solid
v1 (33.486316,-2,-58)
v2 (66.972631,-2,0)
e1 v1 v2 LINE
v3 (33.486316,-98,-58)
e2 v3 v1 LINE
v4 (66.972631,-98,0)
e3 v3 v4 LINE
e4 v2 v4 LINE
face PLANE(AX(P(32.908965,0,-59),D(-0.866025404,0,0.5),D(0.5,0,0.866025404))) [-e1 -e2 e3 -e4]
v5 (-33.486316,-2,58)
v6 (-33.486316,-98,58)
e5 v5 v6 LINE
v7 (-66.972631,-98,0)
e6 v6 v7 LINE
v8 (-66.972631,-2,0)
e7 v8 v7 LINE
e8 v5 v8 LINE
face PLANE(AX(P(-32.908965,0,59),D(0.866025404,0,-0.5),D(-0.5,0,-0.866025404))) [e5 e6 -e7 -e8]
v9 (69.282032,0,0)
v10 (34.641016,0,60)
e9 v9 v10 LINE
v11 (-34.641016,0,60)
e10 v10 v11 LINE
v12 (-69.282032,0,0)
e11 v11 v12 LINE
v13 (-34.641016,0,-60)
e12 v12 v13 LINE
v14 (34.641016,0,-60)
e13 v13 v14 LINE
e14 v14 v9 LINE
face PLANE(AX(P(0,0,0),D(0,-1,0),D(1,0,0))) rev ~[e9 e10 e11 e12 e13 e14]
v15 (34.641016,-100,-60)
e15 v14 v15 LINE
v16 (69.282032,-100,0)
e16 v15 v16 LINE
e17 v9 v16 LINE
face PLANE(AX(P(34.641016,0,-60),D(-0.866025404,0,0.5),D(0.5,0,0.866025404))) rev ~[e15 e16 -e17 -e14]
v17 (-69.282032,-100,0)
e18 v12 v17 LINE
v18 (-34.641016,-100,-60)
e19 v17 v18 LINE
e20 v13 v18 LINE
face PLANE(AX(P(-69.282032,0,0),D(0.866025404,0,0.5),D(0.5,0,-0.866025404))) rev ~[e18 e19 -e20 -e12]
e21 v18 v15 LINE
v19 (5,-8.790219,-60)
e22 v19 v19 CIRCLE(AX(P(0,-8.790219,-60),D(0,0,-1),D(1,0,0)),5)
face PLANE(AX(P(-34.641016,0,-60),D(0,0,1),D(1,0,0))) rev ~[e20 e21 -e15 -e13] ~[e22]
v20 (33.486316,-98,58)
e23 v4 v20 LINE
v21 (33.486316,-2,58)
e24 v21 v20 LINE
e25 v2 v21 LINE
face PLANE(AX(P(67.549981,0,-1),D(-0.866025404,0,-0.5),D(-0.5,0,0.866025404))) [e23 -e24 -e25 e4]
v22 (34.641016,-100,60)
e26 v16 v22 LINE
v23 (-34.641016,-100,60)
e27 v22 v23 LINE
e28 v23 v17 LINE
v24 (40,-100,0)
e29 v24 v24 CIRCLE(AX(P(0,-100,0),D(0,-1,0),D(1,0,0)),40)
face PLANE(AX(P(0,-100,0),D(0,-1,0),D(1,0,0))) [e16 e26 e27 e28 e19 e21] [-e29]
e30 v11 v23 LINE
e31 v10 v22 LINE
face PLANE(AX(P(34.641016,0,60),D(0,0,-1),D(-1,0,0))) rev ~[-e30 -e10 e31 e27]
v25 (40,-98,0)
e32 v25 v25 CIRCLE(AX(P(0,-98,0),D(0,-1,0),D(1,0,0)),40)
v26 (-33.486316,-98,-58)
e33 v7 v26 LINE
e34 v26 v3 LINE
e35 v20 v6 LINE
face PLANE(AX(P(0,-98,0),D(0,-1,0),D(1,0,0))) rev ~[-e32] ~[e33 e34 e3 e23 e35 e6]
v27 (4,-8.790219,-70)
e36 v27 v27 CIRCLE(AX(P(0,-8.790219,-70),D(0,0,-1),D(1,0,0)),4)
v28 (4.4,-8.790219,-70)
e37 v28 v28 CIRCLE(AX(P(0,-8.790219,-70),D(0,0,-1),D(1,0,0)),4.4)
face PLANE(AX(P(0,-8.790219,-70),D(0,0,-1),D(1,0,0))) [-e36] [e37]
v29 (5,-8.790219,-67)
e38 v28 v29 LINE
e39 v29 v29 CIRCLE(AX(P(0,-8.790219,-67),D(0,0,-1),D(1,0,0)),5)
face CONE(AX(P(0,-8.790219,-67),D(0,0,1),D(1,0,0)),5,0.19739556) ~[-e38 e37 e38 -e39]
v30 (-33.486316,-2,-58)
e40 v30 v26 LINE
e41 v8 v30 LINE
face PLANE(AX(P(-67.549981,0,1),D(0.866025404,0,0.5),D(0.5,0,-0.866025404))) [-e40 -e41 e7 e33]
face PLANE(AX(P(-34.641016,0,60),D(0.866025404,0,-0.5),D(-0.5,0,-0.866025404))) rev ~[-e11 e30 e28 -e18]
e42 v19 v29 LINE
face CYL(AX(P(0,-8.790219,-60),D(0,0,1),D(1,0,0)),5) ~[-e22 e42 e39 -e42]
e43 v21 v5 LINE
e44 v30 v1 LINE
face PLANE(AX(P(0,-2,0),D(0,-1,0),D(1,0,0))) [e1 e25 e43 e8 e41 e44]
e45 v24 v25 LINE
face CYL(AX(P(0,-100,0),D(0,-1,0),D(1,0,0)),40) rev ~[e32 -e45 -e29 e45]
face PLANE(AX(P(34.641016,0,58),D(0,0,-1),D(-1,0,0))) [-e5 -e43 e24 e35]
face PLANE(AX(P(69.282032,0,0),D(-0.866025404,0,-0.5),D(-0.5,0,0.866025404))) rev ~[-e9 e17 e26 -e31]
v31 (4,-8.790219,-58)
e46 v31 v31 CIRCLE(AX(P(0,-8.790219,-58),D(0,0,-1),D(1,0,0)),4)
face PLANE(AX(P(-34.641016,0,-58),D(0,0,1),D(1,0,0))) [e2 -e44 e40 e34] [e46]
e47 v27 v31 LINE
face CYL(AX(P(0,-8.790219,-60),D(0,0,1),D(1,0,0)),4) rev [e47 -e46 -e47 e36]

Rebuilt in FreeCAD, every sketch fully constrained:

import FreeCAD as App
import Part
import Sketcher

V = App.Vector
Q = App.Units.Quantity


def edges_at(feature, points):
    """Names of the edges that pass closest to the given points."""
    edges = feature.Shape.Edges
    near = lambda p: min(range(len(edges)), key=lambda i: edges[i].distToShape(Part.Vertex(*p))[0])
    return sorted({f"Edge{near(p) + 1}" for p in points})


def faces_at(feature, points):
    """Names of the faces that lie closest to the given points."""
    faces = feature.Shape.Faces
    near = lambda p: min(range(len(faces)), key=lambda i: faces[i].distToShape(Part.Vertex(*p))[0])
    return sorted({f"Face{near(p) + 1}" for p in points})

doc = App.newDocument("Part")
params = doc.addObject("Spreadsheet::Sheet", "Params")
for row, (alias, value) in enumerate([
    ("pad1_length", "100 mm"),
    ("thickness_wall", "2 mm"),
    ("sketch2_diameter", "80 mm"),
    ("pad2_length", "2 mm"),
    ("sketch3_diameter", "8 mm"),
    ("pocket1_length", "2 mm"),
    ("sketch4_diameter", "10 mm"),
    ("sketch4_diameter2", "8 mm"),
    ("pad3_length", "10 mm"),
    ("chamfer_size", "0.6 mm"),
    ("chamfer_size2", "3 mm"),
], start=1):
    params.set(f"A{row}", alias)
    params.set(f"B{row}", "=" + value)
    params.setAlias(f"B{row}", alias)

body = doc.addObject("PartDesign::Body", "Body")

# Sketch on XZ plane
sketch1 = body.newObject("Sketcher::SketchObject", "Sketch")
sketch1.AttachmentSupport = (doc.getObject("XZ_Plane"), [""])
sketch1.MapMode = "FlatFace"
sketch1.addGeometry([
    Part.LineSegment(V(34.641016, -60, 0), V(69.282032, 0, 0)),  # 0
    Part.LineSegment(V(69.282032, 0, 0), V(34.641016, 60, 0)),  # 1
    Part.LineSegment(V(34.641016, 60, 0), V(-34.641016, 60, 0)),  # 2
    Part.LineSegment(V(-34.641016, 60, 0), V(-69.282032, 0, 0)),  # 3
    Part.LineSegment(V(-69.282032, 0, 0), V(-34.641016, -60, 0)),  # 4
    Part.LineSegment(V(-34.641016, -60, 0), V(34.641016, -60, 0)),  # 5
], False)
sketch1.addConstraint([
    Sketcher.Constraint("Coincident", 0, 2, 1, 1),
    Sketcher.Constraint("Coincident", 1, 2, 2, 1),
    Sketcher.Constraint("Coincident", 2, 2, 3, 1),
    Sketcher.Constraint("Coincident", 3, 2, 4, 1),
    Sketcher.Constraint("Coincident", 4, 2, 5, 1),
    Sketcher.Constraint("Coincident", 5, 2, 0, 1),
    Sketcher.Constraint("Horizontal", 2),
    Sketcher.Constraint("Horizontal", 5),
    Sketcher.Constraint("Symmetric", 0, 2, 3, 2, -1, 1),
    Sketcher.Constraint("Symmetric", 1, 2, 4, 2, -1, 1),
    Sketcher.Constraint("PointOnObject", 0, 2, -1),
    Sketcher.Constraint("Parallel", 0, 3),
    Sketcher.Constraint("Vertical", 2, 2, 4, 2),
    Sketcher.Constraint("Angle", 0, Q("60 deg")),
    Sketcher.Constraint("DistanceY", -1, 1, 1, 2, 60.0),
    Sketcher.Constraint("DistanceX", 2, 2, 2, 1, 69.282032),
])
pad1 = body.newObject("PartDesign::Pad", "Pad")
pad1.Profile = sketch1
pad1.setExpression("Length", "Params.pad1_length")
doc.recompute()

thickness = body.newObject("PartDesign::Thickness", "Thickness")
thickness.Base = (pad1, faces_at(pad1, [(0, -100, 0)]))
thickness.setExpression("Value", "Params.thickness_wall")
thickness.Reversed = True
thickness.Join = "Arc"

# Sketch on XZ plane
sketch2 = body.newObject("Sketcher::SketchObject", "Sketch001")
sketch2.AttachmentSupport = (doc.getObject("XZ_Plane"), [""])
sketch2.MapMode = "FlatFace"
sketch2.AttachmentOffset = App.Placement(V(0, 0, 100), App.Rotation())
sketch2.addGeometry([
    Part.LineSegment(V(-33.486316, -58, 0), V(33.486316, -58, 0)),  # 0
    Part.LineSegment(V(33.486316, -58, 0), V(66.972631, 0, 0)),  # 1
    Part.LineSegment(V(66.972631, 0, 0), V(33.486316, 58, 0)),  # 2
    Part.LineSegment(V(33.486316, 58, 0), V(-33.486316, 58, 0)),  # 3
    Part.LineSegment(V(-33.486316, 58, 0), V(-66.972631, 0, 0)),  # 4
    Part.LineSegment(V(-66.972631, 0, 0), V(-33.486316, -58, 0)),  # 5
    Part.Circle(V(0, 0, 0), V(0, 0, 1), 40),  # 6
], False)
sketch2.addConstraint([
    Sketcher.Constraint("Coincident", 0, 2, 1, 1),
    Sketcher.Constraint("Coincident", 1, 2, 2, 1),
    Sketcher.Constraint("Coincident", 2, 2, 3, 1),
    Sketcher.Constraint("Coincident", 3, 2, 4, 1),
    Sketcher.Constraint("Coincident", 4, 2, 5, 1),
    Sketcher.Constraint("Coincident", 5, 2, 0, 1),
    Sketcher.Constraint("Horizontal", 0),
    Sketcher.Constraint("Horizontal", 3),
    Sketcher.Constraint("Coincident", 6, 3, -1, 1),
    Sketcher.Constraint("Symmetric", 0, 2, 3, 2, -1, 1),
    Sketcher.Constraint("Symmetric", 1, 2, 4, 2, -1, 1),
    Sketcher.Constraint("PointOnObject", 1, 2, -1),
    Sketcher.Constraint("Parallel", 2, 5),
    Sketcher.Constraint("Vertical", 0, 2, 2, 2),
    Sketcher.Constraint("Diameter", 6, 80.0),
    Sketcher.Constraint("Angle", 1, Q("60 deg")),
    Sketcher.Constraint("DistanceY", 0, 2, -1, 1, 58.0),
    Sketcher.Constraint("DistanceX", 0, 1, 0, 2, 66.972631),
])
sketch2.setExpression("Constraints[14]", "Params.sketch2_diameter")
pad2 = body.newObject("PartDesign::Pad", "Pad001")
pad2.Profile = sketch2
pad2.setExpression("Length", "Params.pad2_length")
pad2.Reversed = True

# Sketch on XY plane
sketch3 = body.newObject("Sketcher::SketchObject", "Sketch002")
sketch3.AttachmentSupport = (doc.getObject("XY_Plane"), [""])
sketch3.MapMode = "FlatFace"
sketch3.AttachmentOffset = App.Placement(V(0, 0, -60), App.Rotation())
sketch3.addGeometry(Part.Circle(V(0, -8.790219, 0), V(0, 0, 1), 4), False)
sketch3.addConstraint([
    Sketcher.Constraint("PointOnObject", 0, 3, -2),
    Sketcher.Constraint("Diameter", 0, 8.0),
    Sketcher.Constraint("DistanceY", 0, 3, -1, 1, 8.790219),
])
sketch3.setExpression("Constraints[1]", "Params.sketch3_diameter")
pocket1 = body.newObject("PartDesign::Pocket", "Pocket")
pocket1.Profile = sketch3
pocket1.setExpression("Length", "Params.pocket1_length")
pocket1.Reversed = True

# Sketch on XY plane
sketch4 = body.newObject("Sketcher::SketchObject", "Sketch003")
sketch4.AttachmentSupport = (doc.getObject("XY_Plane"), [""])
sketch4.MapMode = "FlatFace"
sketch4.AttachmentOffset = App.Placement(V(0, 0, -60), App.Rotation())
sketch4.addGeometry([
    Part.Circle(V(0, -8.790219, 0), V(0, 0, 1), 5),
    Part.Circle(V(0, -8.790219, 0), V(0, 0, 1), 4),
], False)
sketch4.addConstraint([
    Sketcher.Constraint("Coincident", 1, 3, 0, 3),
    Sketcher.Constraint("PointOnObject", 0, 3, -2),
    Sketcher.Constraint("Diameter", 0, 10.0),
    Sketcher.Constraint("Diameter", 1, 8.0),
    Sketcher.Constraint("DistanceY", 0, 3, -1, 1, 8.790219),
])
sketch4.setExpression("Constraints[2]", "Params.sketch4_diameter")
sketch4.setExpression("Constraints[3]", "Params.sketch4_diameter2")
pad3 = body.newObject("PartDesign::Pad", "Pad002")
pad3.Profile = sketch4
pad3.setExpression("Length", "Params.pad3_length")
pad3.Reversed = True
doc.recompute()

chamfer = body.newObject("PartDesign::Chamfer", "Chamfer")
chamfer.Base = (pad3, edges_at(pad3, [(-5, -8.79, -70)]))
chamfer.ChamferType = "Two distances"
chamfer.setExpression("Size", "Params.chamfer_size")
chamfer.setExpression("Size2", "Params.chamfer_size2")
chamfer.FlipDirection = True

doc.recompute()
